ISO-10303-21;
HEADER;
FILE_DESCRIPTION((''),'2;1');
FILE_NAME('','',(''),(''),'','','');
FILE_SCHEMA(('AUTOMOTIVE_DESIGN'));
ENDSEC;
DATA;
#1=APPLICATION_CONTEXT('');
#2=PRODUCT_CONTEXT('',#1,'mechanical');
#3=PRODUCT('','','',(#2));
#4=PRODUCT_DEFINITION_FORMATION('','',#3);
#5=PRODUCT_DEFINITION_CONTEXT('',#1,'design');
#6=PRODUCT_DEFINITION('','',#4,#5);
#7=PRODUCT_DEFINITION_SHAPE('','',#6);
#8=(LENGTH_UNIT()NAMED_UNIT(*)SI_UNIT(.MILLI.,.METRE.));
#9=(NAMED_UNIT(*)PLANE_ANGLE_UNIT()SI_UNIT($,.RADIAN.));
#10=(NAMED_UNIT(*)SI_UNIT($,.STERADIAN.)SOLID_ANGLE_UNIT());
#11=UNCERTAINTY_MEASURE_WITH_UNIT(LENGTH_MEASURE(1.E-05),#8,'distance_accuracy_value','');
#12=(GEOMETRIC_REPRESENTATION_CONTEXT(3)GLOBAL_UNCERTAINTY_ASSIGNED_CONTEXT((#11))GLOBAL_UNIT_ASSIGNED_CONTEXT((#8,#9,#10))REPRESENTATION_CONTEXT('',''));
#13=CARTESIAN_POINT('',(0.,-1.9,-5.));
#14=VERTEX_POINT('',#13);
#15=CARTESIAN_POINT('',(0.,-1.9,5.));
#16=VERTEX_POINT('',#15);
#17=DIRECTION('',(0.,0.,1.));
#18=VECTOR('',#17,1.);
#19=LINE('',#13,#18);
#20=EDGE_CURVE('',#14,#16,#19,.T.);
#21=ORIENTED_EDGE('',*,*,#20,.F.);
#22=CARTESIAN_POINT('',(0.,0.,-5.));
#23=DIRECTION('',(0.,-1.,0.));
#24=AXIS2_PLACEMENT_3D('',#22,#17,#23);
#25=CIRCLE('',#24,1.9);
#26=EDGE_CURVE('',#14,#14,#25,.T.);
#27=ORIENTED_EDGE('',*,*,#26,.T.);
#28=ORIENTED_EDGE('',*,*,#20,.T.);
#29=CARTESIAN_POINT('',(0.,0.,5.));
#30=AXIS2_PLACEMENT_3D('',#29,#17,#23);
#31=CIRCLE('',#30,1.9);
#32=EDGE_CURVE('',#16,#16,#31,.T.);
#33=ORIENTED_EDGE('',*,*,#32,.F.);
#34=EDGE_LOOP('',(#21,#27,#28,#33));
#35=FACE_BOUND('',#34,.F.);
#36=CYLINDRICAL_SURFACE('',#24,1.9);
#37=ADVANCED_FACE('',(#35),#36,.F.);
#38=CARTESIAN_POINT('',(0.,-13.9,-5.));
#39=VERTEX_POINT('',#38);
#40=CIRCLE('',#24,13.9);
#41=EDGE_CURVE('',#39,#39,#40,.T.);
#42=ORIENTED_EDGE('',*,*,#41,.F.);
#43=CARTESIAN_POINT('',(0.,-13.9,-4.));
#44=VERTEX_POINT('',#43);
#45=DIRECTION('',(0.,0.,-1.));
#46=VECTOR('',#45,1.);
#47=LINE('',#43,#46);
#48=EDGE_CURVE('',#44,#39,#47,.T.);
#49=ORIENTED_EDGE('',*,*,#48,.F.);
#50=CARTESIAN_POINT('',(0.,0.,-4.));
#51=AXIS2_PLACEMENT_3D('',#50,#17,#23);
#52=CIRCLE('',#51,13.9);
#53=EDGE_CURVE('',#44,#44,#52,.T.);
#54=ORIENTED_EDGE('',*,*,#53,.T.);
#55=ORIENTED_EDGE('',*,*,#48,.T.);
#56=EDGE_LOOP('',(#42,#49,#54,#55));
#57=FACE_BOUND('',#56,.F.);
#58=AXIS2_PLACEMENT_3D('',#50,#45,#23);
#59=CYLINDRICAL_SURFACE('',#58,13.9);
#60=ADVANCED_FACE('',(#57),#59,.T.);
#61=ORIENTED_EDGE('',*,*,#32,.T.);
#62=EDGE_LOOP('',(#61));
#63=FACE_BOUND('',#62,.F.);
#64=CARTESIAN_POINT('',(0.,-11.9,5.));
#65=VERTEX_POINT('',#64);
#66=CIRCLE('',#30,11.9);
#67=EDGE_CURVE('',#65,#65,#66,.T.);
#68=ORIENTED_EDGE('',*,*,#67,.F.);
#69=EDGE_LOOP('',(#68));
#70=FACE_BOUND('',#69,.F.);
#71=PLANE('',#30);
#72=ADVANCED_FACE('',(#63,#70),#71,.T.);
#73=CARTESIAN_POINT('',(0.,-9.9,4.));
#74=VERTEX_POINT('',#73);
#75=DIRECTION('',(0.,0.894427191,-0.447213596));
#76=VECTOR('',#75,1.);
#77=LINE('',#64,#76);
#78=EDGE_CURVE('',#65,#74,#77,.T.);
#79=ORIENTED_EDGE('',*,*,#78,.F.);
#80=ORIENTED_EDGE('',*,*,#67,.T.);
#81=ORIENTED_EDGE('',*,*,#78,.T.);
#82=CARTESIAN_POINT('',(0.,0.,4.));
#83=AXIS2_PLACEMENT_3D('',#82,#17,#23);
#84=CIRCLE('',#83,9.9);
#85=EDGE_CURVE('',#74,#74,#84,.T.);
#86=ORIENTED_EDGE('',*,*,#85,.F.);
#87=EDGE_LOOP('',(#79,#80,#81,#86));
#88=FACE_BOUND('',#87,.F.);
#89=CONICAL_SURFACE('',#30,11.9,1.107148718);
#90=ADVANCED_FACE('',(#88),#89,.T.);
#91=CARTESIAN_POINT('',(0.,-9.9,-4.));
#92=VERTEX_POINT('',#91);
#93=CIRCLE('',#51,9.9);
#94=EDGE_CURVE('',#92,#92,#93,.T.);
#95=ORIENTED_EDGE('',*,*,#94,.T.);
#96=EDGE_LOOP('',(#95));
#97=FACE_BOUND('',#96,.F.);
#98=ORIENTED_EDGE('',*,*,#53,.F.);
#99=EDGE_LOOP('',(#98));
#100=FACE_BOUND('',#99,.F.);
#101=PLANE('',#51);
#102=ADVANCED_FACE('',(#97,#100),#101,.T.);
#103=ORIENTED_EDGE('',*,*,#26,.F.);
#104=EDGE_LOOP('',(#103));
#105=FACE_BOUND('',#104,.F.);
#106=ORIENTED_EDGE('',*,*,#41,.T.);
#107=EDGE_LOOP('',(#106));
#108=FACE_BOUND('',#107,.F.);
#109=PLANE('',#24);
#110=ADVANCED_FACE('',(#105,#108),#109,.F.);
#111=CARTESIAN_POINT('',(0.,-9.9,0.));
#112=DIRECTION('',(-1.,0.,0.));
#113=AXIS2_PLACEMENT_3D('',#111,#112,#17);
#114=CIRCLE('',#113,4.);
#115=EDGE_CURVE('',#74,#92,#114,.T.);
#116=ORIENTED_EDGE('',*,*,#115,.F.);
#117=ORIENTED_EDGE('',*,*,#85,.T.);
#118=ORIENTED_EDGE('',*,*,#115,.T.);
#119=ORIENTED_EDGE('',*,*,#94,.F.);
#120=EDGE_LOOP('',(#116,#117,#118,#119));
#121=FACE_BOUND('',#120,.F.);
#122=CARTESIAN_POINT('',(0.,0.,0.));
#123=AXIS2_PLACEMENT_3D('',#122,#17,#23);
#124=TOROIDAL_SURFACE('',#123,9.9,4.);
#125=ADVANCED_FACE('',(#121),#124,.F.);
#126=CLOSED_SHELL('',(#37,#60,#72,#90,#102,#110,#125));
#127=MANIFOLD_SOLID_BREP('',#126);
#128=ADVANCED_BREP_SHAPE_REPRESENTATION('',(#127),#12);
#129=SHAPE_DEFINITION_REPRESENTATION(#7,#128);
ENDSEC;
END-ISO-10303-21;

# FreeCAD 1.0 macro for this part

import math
import FreeCAD as App
import Part
import Sketcher

V = App.Vector

doc = App.newDocument("Part")
body = doc.addObject("PartDesign::Body", "Body")

sketch1 = body.newObject("Sketcher::SketchObject", "Sketch")
sketch1.AttachmentSupport = (doc.getObject("YZ_Plane"), [""])
sketch1.MapMode = "FlatFace"
sketch1.addGeometry([
    Part.LineSegment(V(-1.9, -5, 0), V(-1.9, 5, 0)),
    Part.LineSegment(V(-1.9, 5, 0), V(-11.9, 5, 0)),
    Part.LineSegment(V(-11.9, 5, 0), V(-9.9, 4, 0)),
    Part.ArcOfCircle(Part.Circle(V(-9.9, 0, 0), V(0, 0, 1), 4), math.radians(-90), math.radians(90)),
    Part.LineSegment(V(-9.9, -4, 0), V(-13.9, -4, 0)),
    Part.LineSegment(V(-13.9, -4, 0), V(-13.9, -5, 0)),
    Part.LineSegment(V(-13.9, -5, 0), V(-1.9, -5, 0)),
], False)
sketch1.addConstraint([
    Sketcher.Constraint("Coincident", 0, 2, 1, 1),
    Sketcher.Constraint("Coincident", 1, 2, 2, 1),
    Sketcher.Constraint("Coincident", 2, 2, 3, 2),
    Sketcher.Constraint("Tangent", 3, 1, 4, 1),
    Sketcher.Constraint("Coincident", 4, 2, 5, 1),
    Sketcher.Constraint("Coincident", 5, 2, 6, 1),
    Sketcher.Constraint("Coincident", 6, 2, 0, 1),
    Sketcher.Constraint("Vertical", 0),
    Sketcher.Constraint("Horizontal", 1),
    Sketcher.Constraint("Horizontal", 4),
    Sketcher.Constraint("Vertical", 5),
    Sketcher.Constraint("Horizontal", 6),
    Sketcher.Constraint("Symmetric", 2, 2, 3, 1, -1),
    Sketcher.Constraint("Equal", 1, 0),
    Sketcher.Constraint("Radius", 3, 4.0),
    Sketcher.Constraint("DistanceX", 1, 2, 1, 1, 10.0),
    Sketcher.Constraint("DistanceX", 4, 2, 4, 1, 4.0),
    Sketcher.Constraint("DistanceX", 6, 1, 6, 2, 12.0),
    Sketcher.Constraint("DistanceY", 5, 2, 5, 1, 1.0),
    Sketcher.Constraint("DistanceX", 3, 3, -1, 1, 9.9),
])
revolution = body.newObject("PartDesign::Revolution", "Revolution")
revolution.Profile = sketch1
revolution.ReferenceAxis = (sketch1, ["V_Axis"])
revolution.Angle = 360

doc.recompute()
